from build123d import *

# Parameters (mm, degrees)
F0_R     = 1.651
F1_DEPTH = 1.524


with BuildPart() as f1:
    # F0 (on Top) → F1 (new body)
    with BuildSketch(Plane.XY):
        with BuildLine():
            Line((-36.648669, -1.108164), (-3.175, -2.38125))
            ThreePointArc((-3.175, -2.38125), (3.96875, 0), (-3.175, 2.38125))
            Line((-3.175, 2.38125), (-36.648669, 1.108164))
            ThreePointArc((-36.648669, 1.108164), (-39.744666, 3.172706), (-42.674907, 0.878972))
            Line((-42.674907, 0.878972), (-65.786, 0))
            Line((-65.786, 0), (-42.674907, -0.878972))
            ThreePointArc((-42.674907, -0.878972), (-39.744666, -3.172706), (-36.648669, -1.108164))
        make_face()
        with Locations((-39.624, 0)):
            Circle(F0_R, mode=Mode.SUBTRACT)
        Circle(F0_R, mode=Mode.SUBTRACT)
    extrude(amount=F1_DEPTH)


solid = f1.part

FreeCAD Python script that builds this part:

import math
import FreeCAD as App
import Part
import Sketcher

V = App.Vector
Q = App.Units.Quantity

doc = App.newDocument("Part")
params = doc.addObject("Spreadsheet::Sheet", "Params")
for row, (alias, value) in enumerate([
    ("sketch1_diameter", "0.13 in"),
    ("sketch1_radius", "0.15625 in"),
    ("sketch1_radius2", "0.125 in"),
    ("pad1_length", "0.06 in"),
], start=1):
    params.set(f"A{row}", alias)
    params.set(f"B{row}", "=" + value)
    params.setAlias(f"B{row}", alias)

body = doc.addObject("PartDesign::Body", "Body")

# Sketch on XY plane
sketch1 = body.newObject("Sketcher::SketchObject", "Sketch")
sketch1.AttachmentSupport = (doc.getObject("XY_Plane"), [""])
sketch1.MapMode = "FlatFace"
sketch1.addGeometry([
    Part.LineSegment(V(-36.6, -1.1, 0), V(-3.2, -2.4, 0)),  # 0
    Part.ArcOfCircle(Part.Circle(V(0, 0, 0), V(0, 0, 1), 4), math.radians(-143), math.radians(143)),  # 1
    Part.LineSegment(V(-3.2, 2.4, 0), V(-36.6, 1.1, 0)),  # 2
    Part.ArcOfCircle(Part.Circle(V(-39.6, 0, 0), V(0, 0, 1), 3.2), math.radians(20), math.radians(164)),  # 3
    Part.LineSegment(V(-42.7, 0.9, 0), V(-65.8, 0, 0)),  # 4
    Part.LineSegment(V(-65.8, 0, 0), V(-42.7, -0.9, 0)),  # 5
    Part.ArcOfCircle(Part.Circle(V(-39.6, 0, 0), V(0, 0, 1), 3.2), math.radians(-164), math.radians(-20)),  # 6
    Part.Circle(V(-39.6, 0, 0), V(0, 0, 1), 1.7),  # 7
    Part.Circle(V(0, 0, 0), V(0, 0, 1), 1.7),  # 8
], False)
sketch1.addConstraint([
    Sketcher.Constraint("Coincident", 0, 2, 1, 1),
    Sketcher.Constraint("Coincident", 1, 2, 2, 1),
    Sketcher.Constraint("Coincident", 2, 2, 3, 1),
    Sketcher.Constraint("Coincident", 3, 2, 4, 1),
    Sketcher.Constraint("Coincident", 4, 2, 5, 1),
    Sketcher.Constraint("Coincident", 5, 2, 6, 1),
    Sketcher.Constraint("Coincident", 6, 2, 0, 1),
    Sketcher.Constraint("Coincident", 1, 3, -1, 1),
    Sketcher.Constraint("Coincident", 8, 3, -1, 1),
    Sketcher.Constraint("Coincident", 6, 3, 3, 3),
    Sketcher.Constraint("Coincident", 7, 3, 3, 3),
    Sketcher.Constraint("Equal", 3, 6),
    Sketcher.Constraint("Equal", 7, 8),
    Sketcher.Constraint("Symmetric", 3, 2, 5, 2, -1),
    Sketcher.Constraint("PointOnObject", 4, 2, -1),
    Sketcher.Constraint("Parallel", 2, 4),
    Sketcher.Constraint("Parallel", 0, 5),
    Sketcher.Constraint("Vertical", 0, 2, 1, 2),
    Sketcher.Constraint("Diameter", 7, Q("0.13 in")),
    Sketcher.Constraint("Radius", 1, Q("0.15625 in")),
    Sketcher.Constraint("Radius", 3, Q("0.125 in")),
    Sketcher.Constraint("DistanceX", 3, 3, -1, 1, Q("1.56 in")),
    Sketcher.Constraint("DistanceX", 4, 2, -1, 1, Q("2.59 in")),
    Sketcher.Constraint("DistanceX", 0, 2, -1, 1, Q("0.125 in")),
    Sketcher.Constraint("Distance", 4, Q("23.127802 mm")),
])
sketch1.setExpression("Constraints[18]", "Params.sketch1_diameter")
sketch1.setExpression("Constraints[19]", "Params.sketch1_radius")
sketch1.setExpression("Constraints[20]", "Params.sketch1_radius2")
pad1 = body.newObject("PartDesign::Pad", "Pad")
pad1.Profile = sketch1
pad1.setExpression("Length", "Params.pad1_length")

doc.recompute()
